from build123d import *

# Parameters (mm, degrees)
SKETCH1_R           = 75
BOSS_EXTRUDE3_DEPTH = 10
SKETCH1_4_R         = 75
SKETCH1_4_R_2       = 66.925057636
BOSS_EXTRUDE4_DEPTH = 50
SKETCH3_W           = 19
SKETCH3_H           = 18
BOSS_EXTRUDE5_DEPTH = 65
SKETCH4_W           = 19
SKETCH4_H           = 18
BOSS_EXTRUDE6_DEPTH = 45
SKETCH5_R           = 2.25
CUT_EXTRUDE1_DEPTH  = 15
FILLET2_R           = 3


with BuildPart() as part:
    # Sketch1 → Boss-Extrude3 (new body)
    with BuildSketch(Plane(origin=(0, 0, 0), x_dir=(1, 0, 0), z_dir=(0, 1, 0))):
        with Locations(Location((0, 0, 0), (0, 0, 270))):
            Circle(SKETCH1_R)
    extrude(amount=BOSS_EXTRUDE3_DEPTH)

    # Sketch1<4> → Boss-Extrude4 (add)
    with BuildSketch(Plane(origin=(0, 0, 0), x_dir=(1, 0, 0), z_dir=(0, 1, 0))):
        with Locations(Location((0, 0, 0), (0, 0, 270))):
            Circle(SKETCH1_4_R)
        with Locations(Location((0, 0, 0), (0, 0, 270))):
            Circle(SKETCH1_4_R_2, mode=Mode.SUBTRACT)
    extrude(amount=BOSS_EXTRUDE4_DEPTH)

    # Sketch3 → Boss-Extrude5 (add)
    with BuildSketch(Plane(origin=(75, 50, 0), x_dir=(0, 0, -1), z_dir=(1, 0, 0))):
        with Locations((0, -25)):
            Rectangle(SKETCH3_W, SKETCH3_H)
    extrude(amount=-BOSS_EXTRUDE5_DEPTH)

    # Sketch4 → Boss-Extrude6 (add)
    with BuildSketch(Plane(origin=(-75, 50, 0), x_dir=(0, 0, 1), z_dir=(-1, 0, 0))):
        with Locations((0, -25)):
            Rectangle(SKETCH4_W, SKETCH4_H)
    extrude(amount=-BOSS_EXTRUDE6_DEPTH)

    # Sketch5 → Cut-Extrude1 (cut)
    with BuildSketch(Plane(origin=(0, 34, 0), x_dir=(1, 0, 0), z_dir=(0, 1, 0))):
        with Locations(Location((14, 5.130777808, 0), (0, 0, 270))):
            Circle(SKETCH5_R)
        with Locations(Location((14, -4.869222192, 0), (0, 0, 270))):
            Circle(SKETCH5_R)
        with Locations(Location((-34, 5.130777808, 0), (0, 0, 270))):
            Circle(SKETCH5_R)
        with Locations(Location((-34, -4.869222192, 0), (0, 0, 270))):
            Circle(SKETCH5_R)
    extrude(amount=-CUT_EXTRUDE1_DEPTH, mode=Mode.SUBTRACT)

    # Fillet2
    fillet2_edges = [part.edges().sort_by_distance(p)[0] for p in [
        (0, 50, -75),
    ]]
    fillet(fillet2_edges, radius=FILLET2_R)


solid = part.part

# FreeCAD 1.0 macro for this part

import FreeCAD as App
import Part
import Sketcher


def edges_at(feature, points):
    """Names of the edges that pass closest to the given points."""
    edges = feature.Shape.Edges
    near = lambda p: min(range(len(edges)), key=lambda i: edges[i].distToShape(Part.Vertex(*p))[0])
    return sorted({f"Edge{near(p) + 1}" for p in points})


def add_polygon(sketch, points):
    """Adds a closed chain of lines whose ends are joined by coincident constraints."""
    first, n = sketch.GeometryCount, len(points)
    for a, b in zip(points, points[1:] + points[:1]):
        sketch.addGeometry(Part.LineSegment(App.Vector(*a, 0), App.Vector(*b, 0)), False)
    for i in range(n):
        sketch.addConstraint(Sketcher.Constraint("Coincident", first + i, 2, first + (i + 1) % n, 1))

doc = App.newDocument("Part")
body = doc.addObject("PartDesign::Body", "Body")

# Sketch on XZ plane
sketch1 = doc.addObject("Sketcher::SketchObject", "Sketch")
body.addObject(sketch1)
sketch1.AttachmentSupport = (doc.XZ_Plane, [""])
sketch1.MapMode = "FlatFace"
sketch1.addGeometry(Part.Circle(App.Vector(0, 0, 0), App.Vector(0, 0, 1), 75), False)
sketch1.addConstraint([
    Sketcher.Constraint("Coincident", 0, 3, -1, 1),
    Sketcher.Constraint("Diameter", 0, 150.0),
])
pad1 = doc.addObject("PartDesign::Pad", "Pad")
body.addObject(pad1)
pad1.Profile = sketch1
pad1.Length = 10
pad1.Reversed = True

# Sketch on XZ plane
sketch2 = doc.addObject("Sketcher::SketchObject", "Sketch001")
body.addObject(sketch2)
sketch2.AttachmentSupport = (doc.XZ_Plane, [""])
sketch2.MapMode = "FlatFace"
sketch2.addGeometry([
    Part.Circle(App.Vector(0, 0, 0), App.Vector(0, 0, 1), 75),
    Part.Circle(App.Vector(0, 0, 0), App.Vector(0, 0, 1), 67),
], False)
sketch2.addConstraint([
    Sketcher.Constraint("Coincident", 0, 3, -1, 1),
    Sketcher.Constraint("Coincident", 1, 3, -1, 1),
    Sketcher.Constraint("Diameter", 0, 150.0),
    Sketcher.Constraint("Diameter", 1, 133.850115),
])
pad2 = doc.addObject("PartDesign::Pad", "Pad001")
body.addObject(pad2)
pad2.Profile = sketch2
pad2.Length = 50
pad2.Reversed = True

# Sketch on YZ plane
sketch3 = doc.addObject("Sketcher::SketchObject", "Sketch002")
body.addObject(sketch3)
sketch3.AttachmentSupport = (doc.YZ_Plane, [""])
sketch3.MapMode = "FlatFace"
sketch3.AttachmentOffset = App.Placement(App.Vector(0, 0, 75), App.Rotation())
add_polygon(sketch3, [(34, 10), (16, 10), (16, -10), (34, -10)])  # lines 0-3
sketch3.addConstraint([
    Sketcher.Constraint("Horizontal", 0),
    Sketcher.Constraint("Vertical", 1),
    Sketcher.Constraint("Horizontal", 2),
    Sketcher.Constraint("Vertical", 3),
    Sketcher.Constraint("DistanceX", 0, 2, 0, 1, 18.0),
    Sketcher.Constraint("DistanceY", 1, 2, 1, 1, 19.0),
    Sketcher.Constraint("DistanceX", -1, 1, 0, 2, 16.0),
    Sketcher.Constraint("DistanceY", -1, 1, 0, 2, 9.5),
])
pad3 = doc.addObject("PartDesign::Pad", "Pad002")
body.addObject(pad3)
pad3.Profile = sketch3
pad3.Length = 65
pad3.Reversed = True

# Sketch on YZ plane
sketch4 = doc.addObject("Sketcher::SketchObject", "Sketch003")
body.addObject(sketch4)
sketch4.AttachmentSupport = (doc.YZ_Plane, [""])
sketch4.MapMode = "FlatFace"
sketch4.AttachmentOffset = App.Placement(App.Vector(0, 0, -75), App.Rotation())
add_polygon(sketch4, [(34, -10), (16, -10), (16, 10), (34, 10)])  # lines 0-3
sketch4.addConstraint([
    Sketcher.Constraint("Horizontal", 0),
    Sketcher.Constraint("Vertical", 1),
    Sketcher.Constraint("Horizontal", 2),
    Sketcher.Constraint("Vertical", 3),
    Sketcher.Constraint("DistanceX", 0, 2, 0, 1, 18.0),
    Sketcher.Constraint("DistanceY", 1, 1, 1, 2, 19.0),
    Sketcher.Constraint("DistanceX", -1, 1, 0, 2, 16.0),
    Sketcher.Constraint("DistanceY", 0, 2, -1, 1, 9.5),
])
pad4 = doc.addObject("PartDesign::Pad", "Pad003")
body.addObject(pad4)
pad4.Profile = sketch4
pad4.Length = 45

# Sketch on XZ plane
sketch5 = doc.addObject("Sketcher::SketchObject", "Sketch004")
body.addObject(sketch5)
sketch5.AttachmentSupport = (doc.XZ_Plane, [""])
sketch5.MapMode = "FlatFace"
sketch5.AttachmentOffset = App.Placement(App.Vector(0, 0, -34), App.Rotation())
sketch5.addGeometry([
    Part.Circle(App.Vector(14, -5.1, 0), App.Vector(0, 0, 1), 2.2),
    Part.Circle(App.Vector(14, 4.9, 0), App.Vector(0, 0, 1), 2.2),
    Part.Circle(App.Vector(-34, -5.1, 0), App.Vector(0, 0, 1), 2.2),
    Part.Circle(App.Vector(-34, 4.9, 0), App.Vector(0, 0, 1), 2.2),
], False)
sketch5.addConstraint([
    Sketcher.Constraint("Equal", 0, 1),
    Sketcher.Constraint("Equal", 1, 2),
    Sketcher.Constraint("Equal", 2, 3),
    Sketcher.Constraint("Horizontal", 0, 3, 2, 3),
    Sketcher.Constraint("Horizontal", 1, 3, 3, 3),
    Sketcher.Constraint("Vertical", 0, 3, 1, 3),
    Sketcher.Constraint("Vertical", 2, 3, 3, 3),
    Sketcher.Constraint("Diameter", 0, 4.5),
    Sketcher.Constraint("DistanceX", -1, 1, 0, 3, 14.0),
    Sketcher.Constraint("DistanceX", 2, 3, -1, 1, 34.0),
    Sketcher.Constraint("DistanceY", 0, 3, 1, 3, 10.0),
    Sketcher.Constraint("DistanceY", 0, 3, -1, 1, 5.130778),
])
pocket1 = doc.addObject("PartDesign::Pocket", "Pocket")
body.addObject(pocket1)
pocket1.Profile = sketch5
pocket1.Length = 15
pocket1.Reversed = True
doc.recompute()

fillet = doc.addObject("PartDesign::Fillet", "Fillet")
body.addObject(fillet)
fillet.Base = (pocket1, edges_at(pocket1, [(0, 50, -75)]))
fillet.Radius = 3

doc.recompute()
